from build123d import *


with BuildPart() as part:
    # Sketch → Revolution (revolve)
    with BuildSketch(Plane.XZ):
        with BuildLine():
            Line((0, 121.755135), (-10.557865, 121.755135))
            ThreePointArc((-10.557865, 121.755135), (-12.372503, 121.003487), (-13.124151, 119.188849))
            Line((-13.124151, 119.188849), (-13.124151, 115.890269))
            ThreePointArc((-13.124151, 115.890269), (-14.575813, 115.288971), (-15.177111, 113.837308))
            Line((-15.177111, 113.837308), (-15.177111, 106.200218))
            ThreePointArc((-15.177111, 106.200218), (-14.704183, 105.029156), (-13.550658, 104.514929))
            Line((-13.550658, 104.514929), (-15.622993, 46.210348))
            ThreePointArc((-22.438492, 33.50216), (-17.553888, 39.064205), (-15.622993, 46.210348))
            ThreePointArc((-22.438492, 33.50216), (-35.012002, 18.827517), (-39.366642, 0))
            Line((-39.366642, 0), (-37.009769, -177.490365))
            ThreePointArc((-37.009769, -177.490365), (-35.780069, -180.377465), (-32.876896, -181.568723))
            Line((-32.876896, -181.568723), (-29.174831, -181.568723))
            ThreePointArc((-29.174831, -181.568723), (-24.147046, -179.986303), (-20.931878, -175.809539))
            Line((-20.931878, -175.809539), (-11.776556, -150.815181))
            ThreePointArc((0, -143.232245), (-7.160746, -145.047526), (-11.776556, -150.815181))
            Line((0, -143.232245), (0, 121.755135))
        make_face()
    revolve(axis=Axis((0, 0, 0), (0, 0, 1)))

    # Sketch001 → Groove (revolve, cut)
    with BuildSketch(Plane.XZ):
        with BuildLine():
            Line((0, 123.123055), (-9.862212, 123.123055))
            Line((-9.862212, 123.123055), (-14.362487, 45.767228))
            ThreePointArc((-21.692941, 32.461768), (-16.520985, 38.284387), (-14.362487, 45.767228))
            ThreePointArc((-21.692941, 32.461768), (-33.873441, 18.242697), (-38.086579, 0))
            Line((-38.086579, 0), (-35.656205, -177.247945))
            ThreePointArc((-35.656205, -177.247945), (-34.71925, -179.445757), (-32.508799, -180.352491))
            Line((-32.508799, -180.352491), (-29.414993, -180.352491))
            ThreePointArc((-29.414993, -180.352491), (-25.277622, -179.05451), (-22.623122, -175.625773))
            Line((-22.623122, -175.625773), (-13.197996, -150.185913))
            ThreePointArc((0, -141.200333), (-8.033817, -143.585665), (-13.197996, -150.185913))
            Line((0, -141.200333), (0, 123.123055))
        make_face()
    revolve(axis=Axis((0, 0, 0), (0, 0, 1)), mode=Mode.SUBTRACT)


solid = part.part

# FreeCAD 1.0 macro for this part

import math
import FreeCAD as App
import Part
import Sketcher
from FreeCAD import Vector
Q = App.Units.Quantity

doc = App.newDocument("Part")
body = doc.addObject("PartDesign::Body", "Body")

# Sketch on XZ plane
sketch1 = doc.addObject("Sketcher::SketchObject", "Sketch")
body.addObject(sketch1)
sketch1.AttachmentSupport = (doc.XZ_Plane, [""])
sketch1.MapMode = "FlatFace"
sketch1.addGeometry([
    Part.LineSegment(Vector(0, 121.8, 0), Vector(-10.6, 121.8, 0)),  # 0
    Part.ArcOfCircle(Part.Circle(Vector(-10.6, 119.2, 0), Vector(0, 0, 1), 2.6), math.radians(90), math.radians(180)),  # 1
    Part.LineSegment(Vector(-13.1, 119.2, 0), Vector(-13.1, 115.9, 0)),  # 2
    Part.ArcOfCircle(Part.Circle(Vector(-13.1, 113.8, 0), Vector(0, 0, 1), 2.1), math.radians(90), math.radians(180)),  # 3
    Part.LineSegment(Vector(-15.2, 113.8, 0), Vector(-15.2, 106.2, 0)),  # 4
    Part.ArcOfCircle(Part.Circle(Vector(-13.5, 106.2, 0), Vector(0, 0, 1), 1.7), math.radians(-180), math.radians(-92)),  # 5
    Part.LineSegment(Vector(-13.6, 104.5, 0), Vector(-15.6, 46.2, 0)),  # 6
    Part.ArcOfCircle(Part.Circle(Vector(-32, 46.8, 0), Vector(0, 0, 1), 16.3), math.radians(-54), math.radians(-2)),  # 7
    Part.ArcOfCircle(Part.Circle(Vector(1.2, 0.5, 0), Vector(0, 0, 1), 40.6), math.radians(126), math.radians(181)),  # 8
    Part.LineSegment(Vector(-39.4, 0, 0), Vector(-37, -177.5, 0)),  # 9
    Part.ArcOfCircle(Part.Circle(Vector(-32.9, -177.4, 0), Vector(0, 0, 1), 4.1), math.radians(-179), math.radians(-90)),  # 10
    Part.LineSegment(Vector(-32.9, -181.6, 0), Vector(-29.2, -181.6, 0)),  # 11
    Part.ArcOfCircle(Part.Circle(Vector(-29.2, -172.8, 0), Vector(0, 0, 1), 8.8), math.radians(-90), math.radians(-20)),  # 12
    Part.LineSegment(Vector(-20.9, -175.8, 0), Vector(-11.8, -150.8, 0)),  # 13
    Part.ArcOfCircle(Part.Circle(Vector(-0.9, -154.8, 0), Vector(0, 0, 1), 11.6), math.radians(86), math.radians(160)),  # 14
    Part.LineSegment(Vector(0, -143.2, 0), Vector(0, 121.8, 0)),  # 15
], False)
sketch1.addConstraint([
    Sketcher.Constraint("Tangent", 0, 2, 1, 1),
    Sketcher.Constraint("Tangent", 1, 2, 2, 1),
    Sketcher.Constraint("Coincident", 2, 2, 3, 1),
    Sketcher.Constraint("Tangent", 3, 2, 4, 1),
    Sketcher.Constraint("Tangent", 4, 2, 5, 1),
    Sketcher.Constraint("Coincident", 5, 2, 6, 1),
    Sketcher.Constraint("Tangent", 6, 2, 7, 2),
    Sketcher.Constraint("Tangent", 7, 1, 8, 1),
    Sketcher.Constraint("Tangent", 8, 2, 9, 1),
    Sketcher.Constraint("Tangent", 9, 2, 10, 1),
    Sketcher.Constraint("Tangent", 10, 2, 11, 1),
    Sketcher.Constraint("Tangent", 11, 2, 12, 1),
    Sketcher.Constraint("Tangent", 12, 2, 13, 1),
    Sketcher.Constraint("Tangent", 13, 2, 14, 2),
    Sketcher.Constraint("Coincident", 14, 1, 15, 1),
    Sketcher.Constraint("Coincident", 15, 2, 0, 1),
    Sketcher.Constraint("Horizontal", 0),
    Sketcher.Constraint("Vertical", 2),
    Sketcher.Constraint("Vertical", 4),
    Sketcher.Constraint("Horizontal", 11),
    Sketcher.Constraint("Vertical", 15),
    Sketcher.Constraint("PointOnObject", 8, 2, -1),
    Sketcher.Constraint("PointOnObject", 14, 1, -2),
    Sketcher.Constraint("Vertical", 3, 3, 1, 2),
    Sketcher.Constraint("Radius", 3, Q("2.05296 mm")),
    Sketcher.Constraint("Radius", 8, Q("40.553719 mm")),
    Sketcher.Constraint("Radius", 1, Q("2.566287 mm")),
    Sketcher.Constraint("Radius", 5, Q("1.686353 mm")),
    Sketcher.Constraint("Radius", 7, Q("16.348726 mm")),
    Sketcher.Constraint("Radius", 10, Q("4.133236 mm")),
    Sketcher.Constraint("Radius", 12, Q("8.778543 mm")),
    Sketcher.Constraint("Radius", 14, Q("11.608874 mm")),
    Sketcher.Constraint("DistanceY", 12, 3, 13, 2, Q("21.974999 mm")),
    Sketcher.Constraint("Distance", 6, Q("58.341398 mm")),
    Sketcher.Constraint("DistanceY", 2, 2, 2, 1, Q("3.29858 mm")),
    Sketcher.Constraint("DistanceY", 4, 2, 4, 1, Q("7.63709 mm")),
    Sketcher.Constraint("DistanceY", 15, 1, 15, 2, Q("264.98738 mm")),
    Sketcher.Constraint("DistanceX", 7, 3, -1, 1, Q("31.961402 mm")),
    Sketcher.Constraint("DistanceX", 10, 3, 8, 3, Q("34.0604 mm")),
    Sketcher.Constraint("DistanceY", 12, 3, 5, 3, Q("278.990398 mm")),
    Sketcher.Constraint("DistanceX", 5, 2, 5, 3, Q("0.0599 mm")),
    Sketcher.Constraint("DistanceX", 7, 1, 6, 2, Q("6.815499 mm")),
    Sketcher.Constraint("DistanceY", 10, 2, 14, 3, Q("26.760699 mm")),
    Sketcher.Constraint("DistanceX", 0, 2, 0, 1, Q("10.557865 mm")),
])
revolution = doc.addObject("PartDesign::Revolution", "Revolution")
body.addObject(revolution)
revolution.Profile = sketch1
revolution.ReferenceAxis = (sketch1, ["V_Axis"])
revolution.Angle = 360

# Sketch on XZ plane
sketch2 = doc.addObject("Sketcher::SketchObject", "Sketch001")
body.addObject(sketch2)
sketch2.AttachmentSupport = (doc.XZ_Plane, [""])
sketch2.MapMode = "FlatFace"
sketch2.addGeometry([
    Part.LineSegment(Vector(0, 123.1, 0), Vector(-9.9, 123.1, 0)),  # 0
    Part.LineSegment(Vector(-9.9, 123.1, 0), Vector(-14.4, 45.8, 0)),  # 1
    Part.ArcOfCircle(Part.Circle(Vector(-32, 46.8, 0), Vector(0, 0, 1), 17.6), math.radians(-54), math.radians(-3)),  # 2
    Part.ArcOfCircle(Part.Circle(Vector(1.2, 0.5, 0), Vector(0, 0, 1), 39.3), math.radians(126), math.radians(181)),  # 3
    Part.LineSegment(Vector(-38.1, 0, 0), Vector(-35.7, -177.2, 0)),  # 4
    Part.ArcOfCircle(Part.Circle(Vector(-32.5, -177.2, 0), Vector(0, 0, 1), 3.1), math.radians(-179), math.radians(-90)),  # 5
    Part.LineSegment(Vector(-32.5, -180.4, 0), Vector(-29.4, -180.4, 0)),  # 6
    Part.ArcOfCircle(Part.Circle(Vector(-29.4, -173.1, 0), Vector(0, 0, 1), 7.2), math.radians(-90), math.radians(-20)),  # 7
    Part.LineSegment(Vector(-22.6, -175.6, 0), Vector(-13.2, -150.2, 0)),  # 8
    Part.ArcOfCircle(Part.Circle(Vector(-0.3, -155, 0), Vector(0, 0, 1), 13.8), math.radians(89), math.radians(160)),  # 9
    Part.LineSegment(Vector(0, -141.2, 0), Vector(0, 123.1, 0)),  # 10
], False)
sketch2.addConstraint([
    Sketcher.Constraint("Coincident", 0, 2, 1, 1),
    Sketcher.Constraint("Tangent", 1, 2, 2, 2),
    Sketcher.Constraint("Tangent", 2, 1, 3, 1),
    Sketcher.Constraint("Tangent", 3, 2, 4, 1),
    Sketcher.Constraint("Tangent", 4, 2, 5, 1),
    Sketcher.Constraint("Tangent", 5, 2, 6, 1),
    Sketcher.Constraint("Tangent", 6, 2, 7, 1),
    Sketcher.Constraint("Tangent", 7, 2, 8, 1),
    Sketcher.Constraint("Tangent", 8, 2, 9, 2),
    Sketcher.Constraint("Coincident", 9, 1, 10, 1),
    Sketcher.Constraint("Coincident", 10, 2, 0, 1),
    Sketcher.Constraint("Horizontal", 0),
    Sketcher.Constraint("Horizontal", 6),
    Sketcher.Constraint("Vertical", 10),
    Sketcher.Constraint("PointOnObject", 3, 2, -1),
    Sketcher.Constraint("PointOnObject", 9, 1, -2),
    Sketcher.Constraint("Radius", 5, Q("3.1477 mm")),
    Sketcher.Constraint("Radius", 2, Q("17.628671 mm")),
    Sketcher.Constraint("Radius", 3, Q("39.273769 mm")),
    Sketcher.Constraint("Radius", 7, Q("7.243014 mm")),
    Sketcher.Constraint("Radius", 9, Q("13.773543 mm")),
    Sketcher.Constraint("DistanceY", 10, 1, 10, 2, Q("264.323388 mm")),
    Sketcher.Constraint("DistanceX", 2, 3, -1, 1, Q("31.961402 mm")),
    Sketcher.Constraint("DistanceX", -1, 1, 3, 3, Q("1.183498 mm")),
    Sketcher.Constraint("DistanceX", 5, 3, -1, 1, Q("32.5088 mm")),
    Sketcher.Constraint("Distance", 1, Q("77.486621 mm")),
    Sketcher.Constraint("Distance", 8, Q("27.129679 mm")),
    Sketcher.Constraint("DistanceX", 0, 2, 0, 1, Q("9.862212 mm")),
    Sketcher.Constraint("DistanceX", 6, 1, 6, 2, Q("3.093806 mm")),
    Sketcher.Constraint("DistanceY", 5, 3, -1, 1, Q("177.204791 mm")),
])
groove = doc.addObject("PartDesign::Groove", "Groove")
body.addObject(groove)
groove.Profile = sketch2
groove.ReferenceAxis = (sketch2, ["V_Axis"])
groove.Angle = 360

doc.recompute()
